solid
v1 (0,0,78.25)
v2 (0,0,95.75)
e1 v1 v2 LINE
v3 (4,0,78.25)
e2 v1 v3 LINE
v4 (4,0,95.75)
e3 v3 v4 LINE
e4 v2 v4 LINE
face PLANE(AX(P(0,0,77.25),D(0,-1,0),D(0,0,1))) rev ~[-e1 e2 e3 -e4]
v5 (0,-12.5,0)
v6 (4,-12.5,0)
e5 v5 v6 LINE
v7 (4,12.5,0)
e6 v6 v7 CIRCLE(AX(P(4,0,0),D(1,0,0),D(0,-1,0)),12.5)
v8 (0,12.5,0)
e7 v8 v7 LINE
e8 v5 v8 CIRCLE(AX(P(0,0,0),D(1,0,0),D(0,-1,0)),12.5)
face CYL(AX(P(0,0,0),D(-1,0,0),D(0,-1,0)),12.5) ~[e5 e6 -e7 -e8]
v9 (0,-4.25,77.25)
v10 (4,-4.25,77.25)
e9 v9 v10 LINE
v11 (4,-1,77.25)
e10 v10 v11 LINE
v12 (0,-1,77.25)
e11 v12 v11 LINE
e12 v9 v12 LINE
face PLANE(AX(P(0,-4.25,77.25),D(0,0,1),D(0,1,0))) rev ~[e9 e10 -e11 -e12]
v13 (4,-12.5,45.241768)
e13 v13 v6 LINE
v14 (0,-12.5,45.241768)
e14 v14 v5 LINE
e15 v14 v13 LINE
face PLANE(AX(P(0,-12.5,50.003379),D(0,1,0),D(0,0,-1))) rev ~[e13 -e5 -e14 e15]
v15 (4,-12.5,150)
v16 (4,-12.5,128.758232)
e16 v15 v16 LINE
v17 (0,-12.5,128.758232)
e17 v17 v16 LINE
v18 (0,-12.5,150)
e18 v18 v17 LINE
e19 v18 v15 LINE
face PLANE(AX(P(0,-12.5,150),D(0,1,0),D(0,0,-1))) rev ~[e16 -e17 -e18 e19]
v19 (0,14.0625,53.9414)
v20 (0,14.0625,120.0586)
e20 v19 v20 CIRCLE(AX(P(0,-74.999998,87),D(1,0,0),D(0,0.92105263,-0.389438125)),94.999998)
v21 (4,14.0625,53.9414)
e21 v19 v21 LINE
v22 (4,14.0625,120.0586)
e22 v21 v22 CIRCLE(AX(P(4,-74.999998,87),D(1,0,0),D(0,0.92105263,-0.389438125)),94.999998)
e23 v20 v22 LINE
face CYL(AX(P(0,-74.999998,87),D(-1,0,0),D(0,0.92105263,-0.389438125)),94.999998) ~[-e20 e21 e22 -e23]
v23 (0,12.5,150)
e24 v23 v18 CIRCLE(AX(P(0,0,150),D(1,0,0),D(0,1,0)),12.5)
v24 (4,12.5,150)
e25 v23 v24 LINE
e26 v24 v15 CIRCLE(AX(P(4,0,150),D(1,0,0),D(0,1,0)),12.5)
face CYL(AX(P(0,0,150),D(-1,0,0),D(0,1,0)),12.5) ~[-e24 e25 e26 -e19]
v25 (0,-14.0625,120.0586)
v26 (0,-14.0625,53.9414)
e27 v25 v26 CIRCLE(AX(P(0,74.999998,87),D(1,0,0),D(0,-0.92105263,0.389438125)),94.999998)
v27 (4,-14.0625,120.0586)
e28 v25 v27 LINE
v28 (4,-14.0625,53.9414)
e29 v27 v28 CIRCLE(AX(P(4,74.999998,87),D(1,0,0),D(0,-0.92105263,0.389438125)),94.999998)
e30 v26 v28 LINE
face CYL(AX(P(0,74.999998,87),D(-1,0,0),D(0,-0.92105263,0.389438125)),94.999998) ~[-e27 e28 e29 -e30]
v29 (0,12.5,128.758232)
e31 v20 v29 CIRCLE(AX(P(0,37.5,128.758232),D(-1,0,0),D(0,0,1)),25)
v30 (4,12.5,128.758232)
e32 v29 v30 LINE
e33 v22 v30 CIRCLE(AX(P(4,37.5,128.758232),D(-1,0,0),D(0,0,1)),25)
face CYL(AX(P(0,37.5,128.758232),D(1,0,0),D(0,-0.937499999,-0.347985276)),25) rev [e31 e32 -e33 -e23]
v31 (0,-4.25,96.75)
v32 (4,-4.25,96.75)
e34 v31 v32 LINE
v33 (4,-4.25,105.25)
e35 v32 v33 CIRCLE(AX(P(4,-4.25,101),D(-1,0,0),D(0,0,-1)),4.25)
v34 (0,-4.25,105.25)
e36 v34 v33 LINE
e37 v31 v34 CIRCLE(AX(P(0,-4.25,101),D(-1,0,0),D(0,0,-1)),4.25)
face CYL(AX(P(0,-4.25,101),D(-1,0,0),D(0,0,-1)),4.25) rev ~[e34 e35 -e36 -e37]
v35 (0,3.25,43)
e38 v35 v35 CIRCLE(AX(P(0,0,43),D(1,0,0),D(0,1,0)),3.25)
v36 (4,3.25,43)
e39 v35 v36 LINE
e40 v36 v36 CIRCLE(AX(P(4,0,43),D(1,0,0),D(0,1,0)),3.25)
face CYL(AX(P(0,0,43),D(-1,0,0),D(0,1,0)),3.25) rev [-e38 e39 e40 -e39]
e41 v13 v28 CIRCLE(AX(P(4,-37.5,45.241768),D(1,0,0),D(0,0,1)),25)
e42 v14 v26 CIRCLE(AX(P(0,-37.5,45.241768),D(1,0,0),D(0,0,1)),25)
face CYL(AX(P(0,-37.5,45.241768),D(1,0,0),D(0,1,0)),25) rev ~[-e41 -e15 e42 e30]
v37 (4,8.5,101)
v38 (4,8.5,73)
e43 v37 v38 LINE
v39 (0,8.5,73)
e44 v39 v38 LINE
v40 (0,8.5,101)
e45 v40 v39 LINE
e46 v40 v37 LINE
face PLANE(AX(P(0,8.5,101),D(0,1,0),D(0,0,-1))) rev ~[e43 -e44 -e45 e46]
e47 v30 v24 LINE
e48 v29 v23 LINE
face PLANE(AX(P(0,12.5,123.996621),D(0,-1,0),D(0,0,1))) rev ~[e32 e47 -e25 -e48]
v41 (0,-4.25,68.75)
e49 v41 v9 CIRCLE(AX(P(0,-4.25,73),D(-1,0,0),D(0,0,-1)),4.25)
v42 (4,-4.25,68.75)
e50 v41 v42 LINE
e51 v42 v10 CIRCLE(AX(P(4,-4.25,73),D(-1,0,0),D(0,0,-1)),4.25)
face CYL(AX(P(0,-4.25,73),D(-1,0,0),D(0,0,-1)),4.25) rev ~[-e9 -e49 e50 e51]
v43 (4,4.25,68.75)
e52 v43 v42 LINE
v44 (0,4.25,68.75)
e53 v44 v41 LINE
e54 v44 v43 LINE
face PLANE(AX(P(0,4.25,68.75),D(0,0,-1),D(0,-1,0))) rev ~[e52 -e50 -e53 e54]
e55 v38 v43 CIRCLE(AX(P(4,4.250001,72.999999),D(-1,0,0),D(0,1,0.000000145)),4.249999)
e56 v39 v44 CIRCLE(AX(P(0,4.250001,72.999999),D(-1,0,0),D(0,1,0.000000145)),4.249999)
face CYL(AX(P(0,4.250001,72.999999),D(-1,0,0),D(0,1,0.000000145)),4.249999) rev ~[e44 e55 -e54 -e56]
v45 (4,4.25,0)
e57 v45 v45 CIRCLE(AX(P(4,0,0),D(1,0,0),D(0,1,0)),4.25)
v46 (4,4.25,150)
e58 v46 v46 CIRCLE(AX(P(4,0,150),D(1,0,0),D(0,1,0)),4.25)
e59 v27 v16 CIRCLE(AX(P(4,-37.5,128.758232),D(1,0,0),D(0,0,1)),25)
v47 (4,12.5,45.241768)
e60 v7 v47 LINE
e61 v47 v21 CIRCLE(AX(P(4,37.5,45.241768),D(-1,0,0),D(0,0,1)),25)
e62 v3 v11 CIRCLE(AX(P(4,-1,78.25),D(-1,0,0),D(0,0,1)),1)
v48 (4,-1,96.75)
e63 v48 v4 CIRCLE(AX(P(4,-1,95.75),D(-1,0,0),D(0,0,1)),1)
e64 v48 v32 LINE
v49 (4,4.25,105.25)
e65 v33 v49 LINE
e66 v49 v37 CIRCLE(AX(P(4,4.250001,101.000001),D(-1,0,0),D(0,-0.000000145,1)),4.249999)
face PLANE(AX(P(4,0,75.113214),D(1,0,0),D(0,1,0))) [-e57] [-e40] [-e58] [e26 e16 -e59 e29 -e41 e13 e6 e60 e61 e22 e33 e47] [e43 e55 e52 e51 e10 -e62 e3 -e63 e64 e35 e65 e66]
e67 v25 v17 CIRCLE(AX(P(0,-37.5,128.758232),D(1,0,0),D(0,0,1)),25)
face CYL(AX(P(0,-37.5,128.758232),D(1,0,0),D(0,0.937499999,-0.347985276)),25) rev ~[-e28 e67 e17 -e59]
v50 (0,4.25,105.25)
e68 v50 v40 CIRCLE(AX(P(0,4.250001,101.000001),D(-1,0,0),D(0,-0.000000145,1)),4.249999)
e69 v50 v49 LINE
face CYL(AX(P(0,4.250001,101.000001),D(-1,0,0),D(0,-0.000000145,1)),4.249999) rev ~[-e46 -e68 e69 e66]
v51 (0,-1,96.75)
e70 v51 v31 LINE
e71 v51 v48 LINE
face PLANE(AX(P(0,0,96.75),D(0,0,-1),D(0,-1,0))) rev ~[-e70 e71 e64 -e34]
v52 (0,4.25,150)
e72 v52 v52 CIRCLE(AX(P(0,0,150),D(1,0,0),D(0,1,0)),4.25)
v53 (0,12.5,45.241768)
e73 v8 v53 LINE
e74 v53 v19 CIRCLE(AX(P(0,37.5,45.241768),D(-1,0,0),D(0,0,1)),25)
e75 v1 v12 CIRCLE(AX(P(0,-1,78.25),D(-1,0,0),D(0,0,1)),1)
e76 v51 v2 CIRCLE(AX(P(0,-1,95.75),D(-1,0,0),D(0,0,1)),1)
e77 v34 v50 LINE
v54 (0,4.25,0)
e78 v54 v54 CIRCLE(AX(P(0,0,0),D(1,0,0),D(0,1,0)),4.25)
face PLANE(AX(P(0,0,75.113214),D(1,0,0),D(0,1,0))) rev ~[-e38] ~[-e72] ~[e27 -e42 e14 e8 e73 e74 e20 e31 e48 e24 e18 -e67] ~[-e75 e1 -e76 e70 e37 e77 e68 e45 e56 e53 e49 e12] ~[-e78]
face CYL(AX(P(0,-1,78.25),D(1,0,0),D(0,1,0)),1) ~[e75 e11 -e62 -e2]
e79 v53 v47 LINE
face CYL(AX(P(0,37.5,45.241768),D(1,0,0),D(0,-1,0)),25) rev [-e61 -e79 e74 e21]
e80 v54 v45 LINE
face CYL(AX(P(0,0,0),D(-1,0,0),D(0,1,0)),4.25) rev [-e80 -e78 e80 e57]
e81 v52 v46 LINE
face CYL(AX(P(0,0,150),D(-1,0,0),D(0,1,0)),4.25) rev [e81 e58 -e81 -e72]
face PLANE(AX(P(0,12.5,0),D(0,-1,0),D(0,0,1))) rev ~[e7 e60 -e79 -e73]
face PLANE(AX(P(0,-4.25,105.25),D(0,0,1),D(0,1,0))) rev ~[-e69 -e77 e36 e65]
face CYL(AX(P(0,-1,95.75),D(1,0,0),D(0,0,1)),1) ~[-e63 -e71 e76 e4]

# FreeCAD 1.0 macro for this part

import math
import FreeCAD as App
import Part
import Sketcher

V = App.Vector


def edges_at(feature, points):
    """Names of the edges that pass closest to the given points."""
    edges = feature.Shape.Edges
    near = lambda p: min(range(len(edges)), key=lambda i: edges[i].distToShape(Part.Vertex(*p))[0])
    return sorted({f"Edge{near(p) + 1}" for p in points})

doc = App.newDocument("Part")
body = doc.addObject("PartDesign::Body", "Body")

# Sketch on YZ plane
sketch1 = body.newObject("Sketcher::SketchObject", "Sketch")
sketch1.AttachmentSupport = (doc.getObject("YZ_Plane"), [""])
sketch1.MapMode = "FlatFace"
sketch1.addGeometry([
    Part.ArcOfCircle(Part.Circle(V(0, 0, 0), V(0, 0, 1), 12.5), math.radians(180), math.radians(360)),  # 0
    Part.LineSegment(V(12.5, 0, 0), V(12.5, 50.003379, 0)),  # 1
    Part.ArcOfCircle(Part.Circle(V(-74.999998, 87, 0), V(0, 0, 1), 94.999998), math.radians(-22.919542), math.radians(22.919542)),  # 2
    Part.LineSegment(V(12.5, 123.996621, 0), V(12.5, 150, 0)),  # 3
    Part.ArcOfCircle(Part.Circle(V(0, 150, 0), V(0, 0, 1), 12.5), math.radians(0), math.radians(180)),  # 4
    Part.LineSegment(V(-12.5, 150, 0), V(-12.5, 123.996621, 0)),  # 5
    Part.ArcOfCircle(Part.Circle(V(74.999998, 87, 0), V(0, 0, 1), 94.999998), math.radians(157.080458), math.radians(202.919542)),  # 6
    Part.LineSegment(V(-12.5, 50.003379, 0), V(-12.5, 0, 0)),  # 7
    Part.Circle(V(0, 0, 0), V(0, 0, 1), 4.25),  # 8
    Part.Circle(V(0, 43, 0), V(0, 0, 1), 3.25),  # 9
    Part.Circle(V(0, 150, 0), V(0, 0, 1), 4.25),  # 10
    Part.LineSegment(V(0, 96.75, 0), V(-4.25, 96.75, 0)),  # 11
    Part.ArcOfCircle(Part.Circle(V(-4.25, 101, 0), V(0, 0, 1), 4.25), math.radians(90), math.radians(270)),  # 12
    Part.LineSegment(V(-4.25, 105.25, 0), V(4.25, 105.25, 0)),  # 13
    Part.ArcOfCircle(Part.Circle(V(4.250001, 101.000001, 0), V(0, 0, 1), 4.249999), math.radians(-0.000008), math.radians(90.000008)),  # 14
    Part.LineSegment(V(8.5, 101, 0), V(8.5, 73, 0)),  # 15
    Part.ArcOfCircle(Part.Circle(V(4.250001, 72.999999, 0), V(0, 0, 1), 4.249999), math.radians(-90.000008), math.radians(0.000008)),  # 16
    Part.LineSegment(V(4.25, 68.75, 0), V(-4.25, 68.75, 0)),  # 17
    Part.ArcOfCircle(Part.Circle(V(-4.25, 73, 0), V(0, 0, 1), 4.25), math.radians(90), math.radians(270)),  # 18
    Part.LineSegment(V(-4.25, 77.25, 0), V(0, 77.25, 0)),  # 19
    Part.LineSegment(V(0, 77.25, 0), V(0, 96.75, 0)),  # 20
], False)
sketch1.addConstraint([
    Sketcher.Constraint("Tangent", 0, 2, 1, 1),
    Sketcher.Constraint("Coincident", 1, 2, 2, 1),
    Sketcher.Constraint("Coincident", 2, 2, 3, 1),
    Sketcher.Constraint("Tangent", 3, 2, 4, 1),
    Sketcher.Constraint("Tangent", 4, 2, 5, 1),
    Sketcher.Constraint("Coincident", 5, 2, 6, 1),
    Sketcher.Constraint("Coincident", 6, 2, 7, 1),
    Sketcher.Constraint("Tangent", 7, 2, 0, 1),
    Sketcher.Constraint("Tangent", 11, 2, 12, 2),
    Sketcher.Constraint("Tangent", 12, 1, 13, 1),
    Sketcher.Constraint("Tangent", 13, 2, 14, 2),
    Sketcher.Constraint("Tangent", 14, 1, 15, 1),
    Sketcher.Constraint("Tangent", 15, 2, 16, 2),
    Sketcher.Constraint("Tangent", 16, 1, 17, 1),
    Sketcher.Constraint("Tangent", 17, 2, 18, 2),
    Sketcher.Constraint("Tangent", 18, 1, 19, 1),
    Sketcher.Constraint("Coincident", 19, 2, 20, 1),
    Sketcher.Constraint("Coincident", 20, 2, 11, 1),
    Sketcher.Constraint("Vertical", 1),
    Sketcher.Constraint("Vertical", 3),
    Sketcher.Constraint("Vertical", 5),
    Sketcher.Constraint("Vertical", 7),
    Sketcher.Constraint("Horizontal", 11),
    Sketcher.Constraint("Horizontal", 13),
    Sketcher.Constraint("Vertical", 15),
    Sketcher.Constraint("Horizontal", 17),
    Sketcher.Constraint("Horizontal", 19),
    Sketcher.Constraint("Vertical", 20),
    Sketcher.Constraint("Coincident", 0, 3, -1, 1),
    Sketcher.Constraint("Coincident", 8, 3, -1, 1),
    Sketcher.Constraint("Coincident", 10, 3, 4, 3),
    Sketcher.Constraint("Equal", 0, 4),
    Sketcher.Constraint("Equal", 2, 6),
    Sketcher.Constraint("Equal", 8, 10),
    Sketcher.Constraint("Equal", 10, 12),
    Sketcher.Constraint("Equal", 12, 14),
    Sketcher.Constraint("Equal", 14, 16),
    Sketcher.Constraint("Equal", 16, 18),
    Sketcher.Constraint("Symmetric", 2, 3, 6, 3, -2),
    Sketcher.Constraint("PointOnObject", 4, 3, -2),
    Sketcher.Constraint("PointOnObject", 9, 3, -2),
    Sketcher.Constraint("PointOnObject", 19, 2, -2),
    Sketcher.Constraint("Vertical", 12, 3, 18, 3),
    Sketcher.Constraint("Diameter", 8, 8.5),
    Sketcher.Constraint("Diameter", 9, 6.5),
    Sketcher.Constraint("Radius", 0, 12.5),
    Sketcher.Constraint("DistanceY", 15, 2, 15, 1, 28.0),
    Sketcher.Constraint("DistanceX", 13, 1, 13, 2, 8.5),
    Sketcher.Constraint("DistanceY", -1, 1, 2, 3, 87.0),
    Sketcher.Constraint("DistanceY", -1, 1, 4, 3, 150.0),
    Sketcher.Constraint("DistanceY", -1, 1, 9, 3, 43.0),
    Sketcher.Constraint("DistanceY", -1, 1, 12, 3, 101.0),
    Sketcher.Constraint("DistanceX", 15, 2, 1, 2, 4.0),
    Sketcher.Constraint("Radius", 2, 94.999998),
    Sketcher.Constraint("DistanceY", 1, 1, 1, 2, 50.003379),
])
pad1 = body.newObject("PartDesign::Pad", "Pad")
pad1.Profile = sketch1
pad1.Length = 4
doc.recompute()

fillet = body.newObject("PartDesign::Fillet", "Fillet")
fillet.Base = (pad1, edges_at(pad1, [
    (2, 12.5, 123.997),
    (2, -12.5, 123.997),
    (2, -12.5, 50.003),
    (2, 12.5, 50.003),
]))
fillet.Radius = 25
doc.recompute()

fillet2 = body.newObject("PartDesign::Fillet", "Fillet001")
fillet2.Base = (fillet, edges_at(fillet, [(2, 0, 96.75), (2, 0, 77.25)]))
fillet2.Radius = 1

doc.recompute()
